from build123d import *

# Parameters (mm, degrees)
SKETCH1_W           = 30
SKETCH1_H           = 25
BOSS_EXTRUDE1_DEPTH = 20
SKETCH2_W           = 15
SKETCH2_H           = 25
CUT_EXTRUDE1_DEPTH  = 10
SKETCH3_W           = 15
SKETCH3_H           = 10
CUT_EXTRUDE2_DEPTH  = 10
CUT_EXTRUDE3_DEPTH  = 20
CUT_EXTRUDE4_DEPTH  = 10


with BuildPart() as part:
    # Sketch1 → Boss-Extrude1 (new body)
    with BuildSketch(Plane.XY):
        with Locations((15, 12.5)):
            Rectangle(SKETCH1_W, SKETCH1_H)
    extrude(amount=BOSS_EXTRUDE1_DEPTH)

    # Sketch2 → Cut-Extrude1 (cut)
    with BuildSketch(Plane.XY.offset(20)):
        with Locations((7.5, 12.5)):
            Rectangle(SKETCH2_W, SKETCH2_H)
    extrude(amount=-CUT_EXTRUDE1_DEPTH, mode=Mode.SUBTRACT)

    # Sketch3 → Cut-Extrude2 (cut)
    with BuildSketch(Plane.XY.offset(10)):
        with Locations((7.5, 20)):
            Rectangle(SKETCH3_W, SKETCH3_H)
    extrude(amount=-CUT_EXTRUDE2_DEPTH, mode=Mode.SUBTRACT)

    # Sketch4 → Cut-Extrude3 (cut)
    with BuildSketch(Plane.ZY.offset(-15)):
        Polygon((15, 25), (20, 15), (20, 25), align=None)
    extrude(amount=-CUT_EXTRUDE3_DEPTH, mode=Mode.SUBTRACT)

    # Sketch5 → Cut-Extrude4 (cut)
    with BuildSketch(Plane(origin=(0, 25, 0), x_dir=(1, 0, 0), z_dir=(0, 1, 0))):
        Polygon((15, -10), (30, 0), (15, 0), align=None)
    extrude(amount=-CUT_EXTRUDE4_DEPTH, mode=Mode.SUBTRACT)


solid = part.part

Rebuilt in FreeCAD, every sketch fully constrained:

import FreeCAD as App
import Part
import Sketcher
from FreeCAD import Vector
Q = App.Units.Quantity

doc = App.newDocument("Part")
body = doc.addObject("PartDesign::Body", "Body")

sketch1 = doc.addObject("Sketcher::SketchObject", "Sketch")
body.addObject(sketch1)
sketch1.AttachmentSupport = (doc.XY_Plane, [""])
sketch1.MapMode = "FlatFace"
sketch1.addGeometry(Part.LineSegment(Vector(0, 25, 0), Vector(0, 0, 0)), False)
sketch1.addGeometry(Part.LineSegment(Vector(0, 0, 0), Vector(30, 0, 0)), False)
sketch1.addGeometry(Part.LineSegment(Vector(30, 0, 0), Vector(30, 25, 0)), False)
sketch1.addGeometry(Part.LineSegment(Vector(30, 25, 0), Vector(0, 25, 0)), False)
sketch1.addConstraint(Sketcher.Constraint("Coincident", 0, 2, 1, 1))
sketch1.addConstraint(Sketcher.Constraint("Coincident", 1, 2, 2, 1))
sketch1.addConstraint(Sketcher.Constraint("Coincident", 2, 2, 3, 1))
sketch1.addConstraint(Sketcher.Constraint("Coincident", 3, 2, 0, 1))
sketch1.addConstraint(Sketcher.Constraint("Vertical", 0))
sketch1.addConstraint(Sketcher.Constraint("Horizontal", 1))
sketch1.addConstraint(Sketcher.Constraint("Vertical", 2))
sketch1.addConstraint(Sketcher.Constraint("Horizontal", 3))
sketch1.addConstraint(Sketcher.Constraint("Coincident", 0, 2, -1, 1))
sketch1.addConstraint(Sketcher.Constraint("DistanceX", 1, 1, 1, 2, Q("30 mm")))
sketch1.addConstraint(Sketcher.Constraint("DistanceY", 0, 2, 0, 1, Q("25 mm")))
pad1 = doc.addObject("PartDesign::Pad", "Pad")
body.addObject(pad1)
pad1.Profile = sketch1
pad1.Length = 20

sketch2 = doc.addObject("Sketcher::SketchObject", "Sketch001")
body.addObject(sketch2)
sketch2.AttachmentSupport = (doc.XY_Plane, [""])
sketch2.MapMode = "FlatFace"
sketch2.AttachmentOffset = App.Placement(Vector(0, 0, 20), App.Rotation())
sketch2.addGeometry(Part.LineSegment(Vector(0, 25, 0), Vector(0, 0, 0)), False)
sketch2.addGeometry(Part.LineSegment(Vector(0, 0, 0), Vector(15, 0, 0)), False)
sketch2.addGeometry(Part.LineSegment(Vector(15, 0, 0), Vector(15, 25, 0)), False)
sketch2.addGeometry(Part.LineSegment(Vector(15, 25, 0), Vector(0, 25, 0)), False)
sketch2.addConstraint(Sketcher.Constraint("Coincident", 0, 2, 1, 1))
sketch2.addConstraint(Sketcher.Constraint("Coincident", 1, 2, 2, 1))
sketch2.addConstraint(Sketcher.Constraint("Coincident", 2, 2, 3, 1))
sketch2.addConstraint(Sketcher.Constraint("Coincident", 3, 2, 0, 1))
sketch2.addConstraint(Sketcher.Constraint("Vertical", 0))
sketch2.addConstraint(Sketcher.Constraint("Horizontal", 1))
sketch2.addConstraint(Sketcher.Constraint("Vertical", 2))
sketch2.addConstraint(Sketcher.Constraint("Horizontal", 3))
sketch2.addConstraint(Sketcher.Constraint("Coincident", 0, 2, -1, 1))
sketch2.addConstraint(Sketcher.Constraint("DistanceX", 1, 1, 1, 2, Q("15 mm")))
sketch2.addConstraint(Sketcher.Constraint("DistanceY", 0, 2, 0, 1, Q("25 mm")))
pocket1 = doc.addObject("PartDesign::Pocket", "Pocket")
body.addObject(pocket1)
pocket1.Profile = sketch2
pocket1.Length = 10

sketch3 = doc.addObject("Sketcher::SketchObject", "Sketch002")
body.addObject(sketch3)
sketch3.AttachmentSupport = (doc.XY_Plane, [""])
sketch3.MapMode = "FlatFace"
sketch3.AttachmentOffset = App.Placement(Vector(0, 0, 10), App.Rotation())
sketch3.addGeometry(Part.LineSegment(Vector(0, 25, 0), Vector(0, 15, 0)), False)
sketch3.addGeometry(Part.LineSegment(Vector(0, 15, 0), Vector(15, 15, 0)), False)
sketch3.addGeometry(Part.LineSegment(Vector(15, 15, 0), Vector(15, 25, 0)), False)
sketch3.addGeometry(Part.LineSegment(Vector(15, 25, 0), Vector(0, 25, 0)), False)
sketch3.addConstraint(Sketcher.Constraint("Coincident", 0, 2, 1, 1))
sketch3.addConstraint(Sketcher.Constraint("Coincident", 1, 2, 2, 1))
sketch3.addConstraint(Sketcher.Constraint("Coincident", 2, 2, 3, 1))
sketch3.addConstraint(Sketcher.Constraint("Coincident", 3, 2, 0, 1))
sketch3.addConstraint(Sketcher.Constraint("Vertical", 0))
sketch3.addConstraint(Sketcher.Constraint("Horizontal", 1))
sketch3.addConstraint(Sketcher.Constraint("Vertical", 2))
sketch3.addConstraint(Sketcher.Constraint("Horizontal", 3))
sketch3.addConstraint(Sketcher.Constraint("PointOnObject", 0, 2, -2))
sketch3.addConstraint(Sketcher.Constraint("DistanceX", 1, 1, 1, 2, Q("15 mm")))
sketch3.addConstraint(Sketcher.Constraint("DistanceY", 0, 2, 0, 1, Q("10 mm")))
sketch3.addConstraint(Sketcher.Constraint("DistanceY", -1, 1, 0, 2, Q("15 mm")))
pocket2 = doc.addObject("PartDesign::Pocket", "Pocket001")
body.addObject(pocket2)
pocket2.Profile = sketch3
pocket2.Length = 10

sketch4 = doc.addObject("Sketcher::SketchObject", "Sketch003")
body.addObject(sketch4)
sketch4.AttachmentSupport = (doc.YZ_Plane, [""])
sketch4.MapMode = "FlatFace"
sketch4.AttachmentOffset = App.Placement(Vector(0, 0, 15), App.Rotation())
sketch4.addGeometry(Part.LineSegment(Vector(25, 15, 0), Vector(15, 20, 0)), False)
sketch4.addGeometry(Part.LineSegment(Vector(15, 20, 0), Vector(25, 20, 0)), False)
sketch4.addGeometry(Part.LineSegment(Vector(25, 20, 0), Vector(25, 15, 0)), False)
sketch4.addConstraint(Sketcher.Constraint("Coincident", 0, 2, 1, 1))
sketch4.addConstraint(Sketcher.Constraint("Coincident", 1, 2, 2, 1))
sketch4.addConstraint(Sketcher.Constraint("Coincident", 2, 2, 0, 1))
sketch4.addConstraint(Sketcher.Constraint("Horizontal", 1))
sketch4.addConstraint(Sketcher.Constraint("Vertical", 2))
sketch4.addConstraint(Sketcher.Constraint("DistanceX", 1, 1, 1, 2, Q("10 mm")))
sketch4.addConstraint(Sketcher.Constraint("DistanceY", 2, 2, 2, 1, Q("5 mm")))
sketch4.addConstraint(Sketcher.Constraint("DistanceX", -1, 1, 0, 2, Q("15 mm")))
sketch4.addConstraint(Sketcher.Constraint("DistanceY", -1, 1, 0, 2, Q("20 mm")))
pocket3 = doc.addObject("PartDesign::Pocket", "Pocket002")
body.addObject(pocket3)
pocket3.Profile = sketch4
pocket3.Length = 20
pocket3.Reversed = True

sketch5 = doc.addObject("Sketcher::SketchObject", "Sketch004")
body.addObject(sketch5)
sketch5.AttachmentSupport = (doc.XZ_Plane, [""])
sketch5.MapMode = "FlatFace"
sketch5.AttachmentOffset = App.Placement(Vector(0, 0, -25), App.Rotation())
sketch5.addGeometry(Part.LineSegment(Vector(15, 10, 0), Vector(30, 0, 0)), False)
sketch5.addGeometry(Part.LineSegment(Vector(30, 0, 0), Vector(15, 0, 0)), False)
sketch5.addGeometry(Part.LineSegment(Vector(15, 0, 0), Vector(15, 10, 0)), False)
sketch5.addConstraint(Sketcher.Constraint("Coincident", 0, 2, 1, 1))
sketch5.addConstraint(Sketcher.Constraint("Coincident", 1, 2, 2, 1))
sketch5.addConstraint(Sketcher.Constraint("Coincident", 2, 2, 0, 1))
sketch5.addConstraint(Sketcher.Constraint("Horizontal", 1))
sketch5.addConstraint(Sketcher.Constraint("Vertical", 2))
sketch5.addConstraint(Sketcher.Constraint("PointOnObject", 0, 2, -1))
sketch5.addConstraint(Sketcher.Constraint("DistanceX", 1, 2, 1, 1, Q("15 mm")))
sketch5.addConstraint(Sketcher.Constraint("DistanceY", 2, 1, 2, 2, Q("10 mm")))
sketch5.addConstraint(Sketcher.Constraint("DistanceX", -1, 1, 0, 2, Q("30 mm")))
pocket4 = doc.addObject("PartDesign::Pocket", "Pocket003")
body.addObject(pocket4)
pocket4.Profile = sketch5
pocket4.Length = 10
pocket4.Reversed = True

doc.recompute()
